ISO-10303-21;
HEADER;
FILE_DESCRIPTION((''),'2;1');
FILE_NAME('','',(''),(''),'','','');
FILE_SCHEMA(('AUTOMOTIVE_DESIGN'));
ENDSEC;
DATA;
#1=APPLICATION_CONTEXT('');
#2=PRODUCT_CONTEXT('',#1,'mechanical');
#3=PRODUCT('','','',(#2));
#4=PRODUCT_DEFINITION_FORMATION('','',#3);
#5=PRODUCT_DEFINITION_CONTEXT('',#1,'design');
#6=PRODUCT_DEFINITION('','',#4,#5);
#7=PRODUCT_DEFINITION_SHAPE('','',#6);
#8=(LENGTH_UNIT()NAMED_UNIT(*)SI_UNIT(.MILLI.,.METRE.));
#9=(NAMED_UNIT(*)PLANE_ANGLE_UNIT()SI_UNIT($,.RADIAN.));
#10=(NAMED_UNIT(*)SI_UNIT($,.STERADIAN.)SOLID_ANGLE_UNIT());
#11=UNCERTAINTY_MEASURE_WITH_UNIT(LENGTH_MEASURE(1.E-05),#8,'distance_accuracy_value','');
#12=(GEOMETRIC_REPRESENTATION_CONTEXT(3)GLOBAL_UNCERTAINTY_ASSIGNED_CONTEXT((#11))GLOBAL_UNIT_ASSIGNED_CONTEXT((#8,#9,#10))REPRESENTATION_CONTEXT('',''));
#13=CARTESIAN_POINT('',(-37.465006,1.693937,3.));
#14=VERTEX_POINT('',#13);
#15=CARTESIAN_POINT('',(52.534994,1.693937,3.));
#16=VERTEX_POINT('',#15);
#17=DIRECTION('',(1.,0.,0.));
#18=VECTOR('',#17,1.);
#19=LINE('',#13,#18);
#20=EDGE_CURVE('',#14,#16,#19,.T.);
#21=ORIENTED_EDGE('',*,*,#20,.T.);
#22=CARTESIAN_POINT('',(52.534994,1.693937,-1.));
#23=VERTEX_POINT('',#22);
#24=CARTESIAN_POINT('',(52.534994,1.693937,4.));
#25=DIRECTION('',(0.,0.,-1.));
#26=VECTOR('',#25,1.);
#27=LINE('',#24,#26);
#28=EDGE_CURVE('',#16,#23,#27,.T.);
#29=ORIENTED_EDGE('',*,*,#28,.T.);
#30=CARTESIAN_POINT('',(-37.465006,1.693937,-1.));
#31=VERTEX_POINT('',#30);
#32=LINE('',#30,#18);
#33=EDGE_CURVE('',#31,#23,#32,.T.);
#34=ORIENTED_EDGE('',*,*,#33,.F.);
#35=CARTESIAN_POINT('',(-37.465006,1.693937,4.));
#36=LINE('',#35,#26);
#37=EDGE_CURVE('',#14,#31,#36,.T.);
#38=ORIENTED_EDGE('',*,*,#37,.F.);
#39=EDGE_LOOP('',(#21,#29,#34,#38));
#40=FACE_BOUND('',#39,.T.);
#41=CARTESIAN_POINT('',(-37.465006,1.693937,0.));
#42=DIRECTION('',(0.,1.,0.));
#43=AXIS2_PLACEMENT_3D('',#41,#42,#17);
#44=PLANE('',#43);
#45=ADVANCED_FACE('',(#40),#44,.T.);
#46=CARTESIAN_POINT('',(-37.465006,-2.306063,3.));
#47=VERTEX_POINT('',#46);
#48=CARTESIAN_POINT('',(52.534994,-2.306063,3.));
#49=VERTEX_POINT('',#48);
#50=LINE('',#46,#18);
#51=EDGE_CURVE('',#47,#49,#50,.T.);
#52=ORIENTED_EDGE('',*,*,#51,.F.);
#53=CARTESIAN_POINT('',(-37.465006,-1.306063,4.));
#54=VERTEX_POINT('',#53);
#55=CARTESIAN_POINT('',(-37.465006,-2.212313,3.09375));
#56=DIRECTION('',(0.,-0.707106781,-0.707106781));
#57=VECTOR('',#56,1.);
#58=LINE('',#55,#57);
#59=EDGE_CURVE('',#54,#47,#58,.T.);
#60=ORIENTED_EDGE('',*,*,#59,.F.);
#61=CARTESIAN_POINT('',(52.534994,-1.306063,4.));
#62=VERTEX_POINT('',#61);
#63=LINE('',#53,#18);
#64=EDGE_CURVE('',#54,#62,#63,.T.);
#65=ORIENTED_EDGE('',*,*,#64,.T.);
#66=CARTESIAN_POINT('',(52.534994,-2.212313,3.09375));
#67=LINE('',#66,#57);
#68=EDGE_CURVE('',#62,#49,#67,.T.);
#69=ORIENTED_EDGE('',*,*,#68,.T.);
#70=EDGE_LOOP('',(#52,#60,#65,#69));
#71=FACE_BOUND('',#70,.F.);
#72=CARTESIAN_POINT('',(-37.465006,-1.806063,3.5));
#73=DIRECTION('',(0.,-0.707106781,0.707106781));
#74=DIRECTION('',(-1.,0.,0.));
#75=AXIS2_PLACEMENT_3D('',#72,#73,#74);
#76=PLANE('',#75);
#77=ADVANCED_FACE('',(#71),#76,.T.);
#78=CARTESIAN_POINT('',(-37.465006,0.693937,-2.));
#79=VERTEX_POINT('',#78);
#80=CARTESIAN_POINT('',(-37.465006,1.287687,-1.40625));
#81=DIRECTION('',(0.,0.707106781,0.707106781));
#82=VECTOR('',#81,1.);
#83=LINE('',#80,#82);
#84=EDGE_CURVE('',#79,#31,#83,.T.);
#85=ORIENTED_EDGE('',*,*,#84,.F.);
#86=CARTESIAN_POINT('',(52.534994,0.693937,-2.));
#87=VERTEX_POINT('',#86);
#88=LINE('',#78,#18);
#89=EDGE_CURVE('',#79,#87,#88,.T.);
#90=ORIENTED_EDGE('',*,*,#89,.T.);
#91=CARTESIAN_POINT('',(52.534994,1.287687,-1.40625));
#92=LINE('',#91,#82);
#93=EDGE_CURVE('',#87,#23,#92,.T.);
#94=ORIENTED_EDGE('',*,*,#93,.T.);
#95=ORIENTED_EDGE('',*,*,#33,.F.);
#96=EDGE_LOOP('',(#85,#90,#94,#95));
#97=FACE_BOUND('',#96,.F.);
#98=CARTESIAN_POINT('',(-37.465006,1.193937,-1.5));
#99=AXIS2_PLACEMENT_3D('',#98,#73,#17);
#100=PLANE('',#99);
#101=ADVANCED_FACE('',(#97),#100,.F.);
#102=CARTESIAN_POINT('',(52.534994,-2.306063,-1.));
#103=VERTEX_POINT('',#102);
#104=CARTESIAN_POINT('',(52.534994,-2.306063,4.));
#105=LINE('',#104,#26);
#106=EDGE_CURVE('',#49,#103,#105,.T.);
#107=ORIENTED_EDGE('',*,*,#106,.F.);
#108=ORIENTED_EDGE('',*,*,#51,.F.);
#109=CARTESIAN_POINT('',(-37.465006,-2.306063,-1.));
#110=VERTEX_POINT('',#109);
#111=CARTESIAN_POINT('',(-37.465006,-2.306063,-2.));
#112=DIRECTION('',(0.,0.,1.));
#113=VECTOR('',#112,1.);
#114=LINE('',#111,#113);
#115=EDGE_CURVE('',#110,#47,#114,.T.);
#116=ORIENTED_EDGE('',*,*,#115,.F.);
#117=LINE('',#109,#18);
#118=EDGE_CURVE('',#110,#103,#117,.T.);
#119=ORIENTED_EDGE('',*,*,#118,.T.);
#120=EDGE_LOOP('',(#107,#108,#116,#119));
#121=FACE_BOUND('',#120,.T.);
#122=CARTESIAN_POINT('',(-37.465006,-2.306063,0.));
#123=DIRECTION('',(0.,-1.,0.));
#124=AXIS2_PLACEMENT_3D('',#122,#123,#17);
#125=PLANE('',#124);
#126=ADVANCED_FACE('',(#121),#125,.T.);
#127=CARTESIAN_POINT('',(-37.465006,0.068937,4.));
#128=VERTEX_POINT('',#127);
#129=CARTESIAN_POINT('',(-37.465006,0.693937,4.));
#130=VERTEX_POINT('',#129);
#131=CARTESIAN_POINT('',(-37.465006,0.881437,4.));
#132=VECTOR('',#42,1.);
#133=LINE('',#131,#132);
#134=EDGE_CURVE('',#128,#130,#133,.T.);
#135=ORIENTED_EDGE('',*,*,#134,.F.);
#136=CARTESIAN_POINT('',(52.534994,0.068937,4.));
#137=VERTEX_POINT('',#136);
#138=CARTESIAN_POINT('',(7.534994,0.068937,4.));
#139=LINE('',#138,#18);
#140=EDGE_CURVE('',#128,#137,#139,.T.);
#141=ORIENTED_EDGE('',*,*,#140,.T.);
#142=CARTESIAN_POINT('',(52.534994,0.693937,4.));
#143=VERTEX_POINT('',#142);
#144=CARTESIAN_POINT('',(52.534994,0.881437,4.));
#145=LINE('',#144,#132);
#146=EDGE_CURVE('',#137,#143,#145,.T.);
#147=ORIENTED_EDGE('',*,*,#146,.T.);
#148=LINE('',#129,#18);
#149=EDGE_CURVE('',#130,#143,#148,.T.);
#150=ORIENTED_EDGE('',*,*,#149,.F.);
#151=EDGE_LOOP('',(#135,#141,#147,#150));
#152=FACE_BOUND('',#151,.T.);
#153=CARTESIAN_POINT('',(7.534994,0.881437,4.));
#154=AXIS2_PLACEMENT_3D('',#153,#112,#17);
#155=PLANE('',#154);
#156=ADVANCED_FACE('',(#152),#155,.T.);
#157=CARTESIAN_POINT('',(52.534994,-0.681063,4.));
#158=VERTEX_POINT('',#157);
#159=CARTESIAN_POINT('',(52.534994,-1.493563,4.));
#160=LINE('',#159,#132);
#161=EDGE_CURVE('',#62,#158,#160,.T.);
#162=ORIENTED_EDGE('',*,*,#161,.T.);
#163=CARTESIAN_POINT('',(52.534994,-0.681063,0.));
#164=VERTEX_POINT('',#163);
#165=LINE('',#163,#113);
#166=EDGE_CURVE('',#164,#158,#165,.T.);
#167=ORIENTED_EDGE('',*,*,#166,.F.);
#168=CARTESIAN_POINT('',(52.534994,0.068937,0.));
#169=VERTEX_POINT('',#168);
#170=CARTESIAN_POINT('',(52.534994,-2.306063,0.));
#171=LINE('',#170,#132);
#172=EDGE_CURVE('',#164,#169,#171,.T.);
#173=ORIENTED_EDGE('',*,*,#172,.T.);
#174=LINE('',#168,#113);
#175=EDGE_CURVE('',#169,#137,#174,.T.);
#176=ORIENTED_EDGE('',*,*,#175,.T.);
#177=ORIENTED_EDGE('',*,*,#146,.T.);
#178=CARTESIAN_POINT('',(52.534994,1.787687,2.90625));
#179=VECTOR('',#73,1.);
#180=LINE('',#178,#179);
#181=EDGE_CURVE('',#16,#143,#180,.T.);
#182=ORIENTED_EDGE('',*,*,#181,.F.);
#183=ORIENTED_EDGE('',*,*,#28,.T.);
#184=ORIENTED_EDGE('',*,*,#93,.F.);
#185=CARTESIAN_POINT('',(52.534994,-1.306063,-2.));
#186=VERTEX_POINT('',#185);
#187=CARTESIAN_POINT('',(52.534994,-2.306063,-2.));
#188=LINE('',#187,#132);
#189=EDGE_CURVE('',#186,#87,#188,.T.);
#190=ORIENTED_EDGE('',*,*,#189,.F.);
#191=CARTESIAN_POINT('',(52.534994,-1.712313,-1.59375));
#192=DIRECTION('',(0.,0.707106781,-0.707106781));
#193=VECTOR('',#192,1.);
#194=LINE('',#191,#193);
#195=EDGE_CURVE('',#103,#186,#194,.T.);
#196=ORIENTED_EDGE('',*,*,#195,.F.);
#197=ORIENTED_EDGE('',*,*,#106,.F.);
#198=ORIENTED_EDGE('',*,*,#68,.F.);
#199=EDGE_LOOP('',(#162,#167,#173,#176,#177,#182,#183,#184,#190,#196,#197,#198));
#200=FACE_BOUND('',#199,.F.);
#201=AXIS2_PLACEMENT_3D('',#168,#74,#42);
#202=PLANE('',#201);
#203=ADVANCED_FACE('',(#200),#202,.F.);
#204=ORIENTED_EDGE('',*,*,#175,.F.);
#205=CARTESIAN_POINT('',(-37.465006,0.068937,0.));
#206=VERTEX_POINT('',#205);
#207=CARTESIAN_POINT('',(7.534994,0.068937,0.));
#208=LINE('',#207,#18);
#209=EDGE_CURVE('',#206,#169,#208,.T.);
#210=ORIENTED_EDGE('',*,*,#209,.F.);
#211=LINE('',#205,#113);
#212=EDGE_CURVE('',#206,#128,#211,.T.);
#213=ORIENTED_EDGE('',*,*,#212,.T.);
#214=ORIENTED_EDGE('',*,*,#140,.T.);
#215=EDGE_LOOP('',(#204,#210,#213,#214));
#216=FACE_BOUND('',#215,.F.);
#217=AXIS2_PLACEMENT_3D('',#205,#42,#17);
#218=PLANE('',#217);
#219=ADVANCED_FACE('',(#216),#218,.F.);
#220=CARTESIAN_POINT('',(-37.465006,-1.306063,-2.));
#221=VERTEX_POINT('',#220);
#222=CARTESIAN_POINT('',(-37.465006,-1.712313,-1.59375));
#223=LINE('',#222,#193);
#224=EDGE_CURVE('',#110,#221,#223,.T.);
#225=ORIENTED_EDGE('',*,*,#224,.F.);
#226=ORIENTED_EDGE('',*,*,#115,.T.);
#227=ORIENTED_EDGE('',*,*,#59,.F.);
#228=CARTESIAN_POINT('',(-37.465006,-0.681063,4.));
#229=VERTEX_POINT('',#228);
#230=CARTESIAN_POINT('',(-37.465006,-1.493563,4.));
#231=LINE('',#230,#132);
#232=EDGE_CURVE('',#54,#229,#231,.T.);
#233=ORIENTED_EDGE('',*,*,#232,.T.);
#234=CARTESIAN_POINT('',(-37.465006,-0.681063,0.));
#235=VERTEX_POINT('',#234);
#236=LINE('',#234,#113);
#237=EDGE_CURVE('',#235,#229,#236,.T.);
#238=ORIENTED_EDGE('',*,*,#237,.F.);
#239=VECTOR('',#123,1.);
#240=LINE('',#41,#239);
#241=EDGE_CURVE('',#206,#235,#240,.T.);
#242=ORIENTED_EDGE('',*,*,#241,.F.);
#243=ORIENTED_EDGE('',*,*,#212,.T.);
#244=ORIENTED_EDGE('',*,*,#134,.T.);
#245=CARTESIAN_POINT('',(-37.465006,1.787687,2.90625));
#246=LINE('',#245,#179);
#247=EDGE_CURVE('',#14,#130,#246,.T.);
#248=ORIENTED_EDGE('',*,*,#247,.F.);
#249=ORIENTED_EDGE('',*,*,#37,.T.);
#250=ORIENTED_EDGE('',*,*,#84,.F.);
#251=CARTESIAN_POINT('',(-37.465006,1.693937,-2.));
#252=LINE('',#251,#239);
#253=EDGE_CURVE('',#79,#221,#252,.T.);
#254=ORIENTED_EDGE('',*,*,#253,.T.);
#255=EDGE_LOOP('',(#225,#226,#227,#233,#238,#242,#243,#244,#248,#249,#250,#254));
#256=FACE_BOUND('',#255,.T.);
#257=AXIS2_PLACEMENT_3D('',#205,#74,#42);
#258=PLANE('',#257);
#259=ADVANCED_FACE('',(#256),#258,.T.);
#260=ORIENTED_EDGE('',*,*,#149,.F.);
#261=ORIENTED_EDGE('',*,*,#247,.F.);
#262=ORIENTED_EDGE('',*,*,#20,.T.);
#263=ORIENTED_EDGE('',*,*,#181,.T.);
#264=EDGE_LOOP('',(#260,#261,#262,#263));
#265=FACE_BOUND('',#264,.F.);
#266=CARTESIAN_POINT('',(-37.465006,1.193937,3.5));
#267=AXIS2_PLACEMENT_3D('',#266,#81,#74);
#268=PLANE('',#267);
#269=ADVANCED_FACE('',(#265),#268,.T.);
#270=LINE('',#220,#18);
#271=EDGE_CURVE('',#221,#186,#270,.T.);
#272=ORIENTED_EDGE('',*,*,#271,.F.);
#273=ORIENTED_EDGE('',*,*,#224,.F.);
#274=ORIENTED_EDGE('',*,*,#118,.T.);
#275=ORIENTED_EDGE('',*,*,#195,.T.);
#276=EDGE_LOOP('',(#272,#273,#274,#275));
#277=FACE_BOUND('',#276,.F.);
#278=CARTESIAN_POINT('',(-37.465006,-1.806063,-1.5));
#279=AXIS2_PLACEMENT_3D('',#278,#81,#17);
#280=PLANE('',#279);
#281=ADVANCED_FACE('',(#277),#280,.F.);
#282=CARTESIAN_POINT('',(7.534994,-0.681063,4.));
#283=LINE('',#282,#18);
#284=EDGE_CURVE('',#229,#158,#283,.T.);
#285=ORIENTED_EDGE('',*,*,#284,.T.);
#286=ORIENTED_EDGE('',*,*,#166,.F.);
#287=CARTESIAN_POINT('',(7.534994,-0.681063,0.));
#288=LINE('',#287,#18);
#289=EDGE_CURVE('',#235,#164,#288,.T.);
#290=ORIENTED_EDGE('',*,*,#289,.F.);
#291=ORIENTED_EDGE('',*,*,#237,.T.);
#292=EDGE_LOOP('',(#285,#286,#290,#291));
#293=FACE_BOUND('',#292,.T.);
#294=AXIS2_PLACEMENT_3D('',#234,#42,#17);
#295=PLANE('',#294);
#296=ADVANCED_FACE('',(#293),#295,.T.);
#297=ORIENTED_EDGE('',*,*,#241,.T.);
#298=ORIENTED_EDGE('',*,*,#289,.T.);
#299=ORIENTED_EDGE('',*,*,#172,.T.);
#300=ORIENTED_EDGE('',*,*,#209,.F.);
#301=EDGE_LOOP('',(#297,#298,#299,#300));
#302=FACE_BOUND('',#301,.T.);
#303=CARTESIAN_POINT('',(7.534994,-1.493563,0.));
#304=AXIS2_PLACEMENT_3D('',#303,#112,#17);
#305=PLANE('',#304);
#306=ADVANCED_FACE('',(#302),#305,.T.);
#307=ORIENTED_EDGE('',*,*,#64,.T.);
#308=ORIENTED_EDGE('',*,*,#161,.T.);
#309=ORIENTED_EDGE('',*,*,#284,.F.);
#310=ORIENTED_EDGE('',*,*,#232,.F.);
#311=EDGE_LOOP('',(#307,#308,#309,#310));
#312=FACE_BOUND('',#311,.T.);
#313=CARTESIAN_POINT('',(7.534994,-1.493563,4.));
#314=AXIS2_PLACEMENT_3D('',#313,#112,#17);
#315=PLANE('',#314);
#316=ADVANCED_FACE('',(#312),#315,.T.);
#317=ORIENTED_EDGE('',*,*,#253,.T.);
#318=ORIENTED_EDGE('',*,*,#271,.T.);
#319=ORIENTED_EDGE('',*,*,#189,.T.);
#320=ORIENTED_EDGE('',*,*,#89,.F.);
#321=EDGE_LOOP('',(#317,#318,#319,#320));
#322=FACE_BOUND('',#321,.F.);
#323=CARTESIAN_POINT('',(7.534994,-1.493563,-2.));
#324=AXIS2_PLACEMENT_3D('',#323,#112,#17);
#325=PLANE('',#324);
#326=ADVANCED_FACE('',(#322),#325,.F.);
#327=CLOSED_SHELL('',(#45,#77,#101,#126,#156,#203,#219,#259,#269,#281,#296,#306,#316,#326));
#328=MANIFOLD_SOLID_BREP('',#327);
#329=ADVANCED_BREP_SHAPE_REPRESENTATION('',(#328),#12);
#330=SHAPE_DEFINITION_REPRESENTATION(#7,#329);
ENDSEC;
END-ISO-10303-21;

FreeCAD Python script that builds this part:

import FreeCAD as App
import Part
import Sketcher

V = App.Vector
Q = App.Units.Quantity


def edges_at(feature, points):
    """Names of the edges that pass closest to the given points."""
    edges = feature.Shape.Edges
    near = lambda p: min(range(len(edges)), key=lambda i: edges[i].distToShape(Part.Vertex(*p))[0])
    return sorted({f"Edge{near(p) + 1}" for p in points})

doc = App.newDocument("Part")
body = doc.addObject("PartDesign::Body", "Body")

# Sketch on XY plane
sketch1 = body.newObject("Sketcher::SketchObject", "Sketch")
sketch1.AttachmentSupport = (doc.getObject("XY_Plane"), [""])
sketch1.MapMode = "FlatFace"
sketch1.addGeometry([
    Part.LineSegment(V(-37.5, -2.3, 0), V(52.5, -2.3, 0)),
    Part.LineSegment(V(52.5, -2.3, 0), V(52.5, 1.7, 0)),
    Part.LineSegment(V(52.5, 1.7, 0), V(-37.5, 1.7, 0)),
    Part.LineSegment(V(-37.5, 1.7, 0), V(-37.5, -2.3, 0)),
], False)
sketch1.addConstraint([
    Sketcher.Constraint("Coincident", 0, 2, 1, 1),
    Sketcher.Constraint("Coincident", 1, 2, 2, 1),
    Sketcher.Constraint("Coincident", 2, 2, 3, 1),
    Sketcher.Constraint("Coincident", 3, 2, 0, 1),
    Sketcher.Constraint("Horizontal", 0),
    Sketcher.Constraint("Vertical", 1),
    Sketcher.Constraint("Horizontal", 2),
    Sketcher.Constraint("Vertical", 3),
    Sketcher.Constraint("DistanceX", 0, 1, 0, 2, Q("90 mm")),
    Sketcher.Constraint("DistanceY", 1, 1, 1, 2, Q("4 mm")),
    Sketcher.Constraint("DistanceX", -1, 1, 0, 2, Q("52.534994 mm")),
    Sketcher.Constraint("DistanceY", 0, 2, -1, 1, Q("2.306063 mm")),
])
pad1 = body.newObject("PartDesign::Pad", "Pad")
pad1.Profile = sketch1
pad1.Length = 2
pad1.Reversed = True

# Sketch on XY plane
sketch2 = body.newObject("Sketcher::SketchObject", "Sketch001")
sketch2.AttachmentSupport = (doc.getObject("XY_Plane"), [""])
sketch2.MapMode = "FlatFace"
sketch2.addGeometry([
    Part.LineSegment(V(-37.5, 1.7, 0), V(-37.5, 0.1, 0)),  # 0
    Part.LineSegment(V(-37.5, 0.1, 0), V(52.5, 0.1, 0)),  # 1
    Part.LineSegment(V(52.5, 0.1, 0), V(52.5, 1.7, 0)),  # 2
    Part.LineSegment(V(52.5, 1.7, 0), V(-37.5, 1.7, 0)),  # 3
    Part.LineSegment(V(-37.5, -0.7, 0), V(-37.5, -2.3, 0)),  # 4
    Part.LineSegment(V(-37.5, -2.3, 0), V(52.5, -2.3, 0)),  # 5
    Part.LineSegment(V(52.5, -2.3, 0), V(52.5, -0.7, 0)),  # 6
    Part.LineSegment(V(52.5, -0.7, 0), V(-37.5, -0.7, 0)),  # 7
], False)
sketch2.addConstraint([
    Sketcher.Constraint("Coincident", 0, 2, 1, 1),
    Sketcher.Constraint("Coincident", 1, 2, 2, 1),
    Sketcher.Constraint("Coincident", 2, 2, 3, 1),
    Sketcher.Constraint("Coincident", 3, 2, 0, 1),
    Sketcher.Constraint("Coincident", 4, 2, 5, 1),
    Sketcher.Constraint("Coincident", 5, 2, 6, 1),
    Sketcher.Constraint("Coincident", 6, 2, 7, 1),
    Sketcher.Constraint("Coincident", 7, 2, 4, 1),
    Sketcher.Constraint("Vertical", 0),
    Sketcher.Constraint("Horizontal", 1),
    Sketcher.Constraint("Vertical", 2),
    Sketcher.Constraint("Horizontal", 3),
    Sketcher.Constraint("Vertical", 4),
    Sketcher.Constraint("Horizontal", 5),
    Sketcher.Constraint("Vertical", 6),
    Sketcher.Constraint("Horizontal", 7),
    Sketcher.Constraint("Vertical", 3, 2, 4, 2),
    Sketcher.Constraint("Vertical", 2, 2, 5, 2),
    Sketcher.Constraint("Equal", 2, 4),
    Sketcher.Constraint("DistanceX", 1, 1, 1, 2, Q("90 mm")),
    Sketcher.Constraint("DistanceY", 4, 2, 3, 2, Q("4 mm")),
    Sketcher.Constraint("DistanceY", 0, 2, 0, 1, Q("1.625 mm")),
    Sketcher.Constraint("DistanceX", 0, 2, -1, 1, Q("37.465006 mm")),
    Sketcher.Constraint("DistanceY", -1, 1, 0, 2, Q("0.068937 mm")),
])
pad2 = body.newObject("PartDesign::Pad", "Pad001")
pad2.Profile = sketch2
pad2.Length = 4
doc.recompute()

chamfer = body.newObject("PartDesign::Chamfer", "Chamfer")
chamfer.Base = (pad2, edges_at(pad2, [
    (7.535, 1.694, -2),
    (7.535, -2.306, -2),
    (7.535, 1.694, 4),
    (7.535, -2.306, 4),
]))
chamfer.ChamferType = "Two distances"
chamfer.Size = 1
chamfer.Size2 = 1

doc.recompute()
